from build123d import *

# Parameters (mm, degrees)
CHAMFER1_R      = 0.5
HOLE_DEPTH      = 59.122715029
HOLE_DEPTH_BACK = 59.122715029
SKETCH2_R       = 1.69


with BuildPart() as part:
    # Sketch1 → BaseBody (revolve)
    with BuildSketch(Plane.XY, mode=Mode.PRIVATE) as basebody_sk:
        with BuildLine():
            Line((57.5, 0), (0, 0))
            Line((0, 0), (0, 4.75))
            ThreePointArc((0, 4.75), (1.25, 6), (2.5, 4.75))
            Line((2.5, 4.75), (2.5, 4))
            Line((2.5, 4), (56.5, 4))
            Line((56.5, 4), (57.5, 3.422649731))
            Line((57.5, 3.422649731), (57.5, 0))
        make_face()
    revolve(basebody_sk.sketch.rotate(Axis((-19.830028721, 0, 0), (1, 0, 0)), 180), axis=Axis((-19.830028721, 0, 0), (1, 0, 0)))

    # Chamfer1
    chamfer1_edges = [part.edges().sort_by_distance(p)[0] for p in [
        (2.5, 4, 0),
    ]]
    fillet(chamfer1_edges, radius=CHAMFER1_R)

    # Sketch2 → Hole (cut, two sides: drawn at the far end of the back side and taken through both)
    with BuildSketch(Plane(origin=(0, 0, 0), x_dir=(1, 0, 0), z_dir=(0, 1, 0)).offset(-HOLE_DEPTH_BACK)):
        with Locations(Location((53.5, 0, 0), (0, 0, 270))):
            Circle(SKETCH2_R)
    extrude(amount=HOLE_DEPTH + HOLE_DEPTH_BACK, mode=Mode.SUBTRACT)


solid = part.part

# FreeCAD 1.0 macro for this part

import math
import FreeCAD as App
import Part
import Sketcher
from FreeCAD import Vector
Q = App.Units.Quantity


def edges_at(feature, points):
    """Names of the edges that pass closest to the given points."""
    edges = feature.Shape.Edges
    near = lambda p: min(range(len(edges)), key=lambda i: edges[i].distToShape(Part.Vertex(*p))[0])
    return sorted({f"Edge{near(p) + 1}" for p in points})

doc = App.newDocument("Part")
body = doc.addObject("PartDesign::Body", "Body")

# Sketch on XY plane
sketch1 = body.newObject("Sketcher::SketchObject", "Sketch")
sketch1.AttachmentSupport = (doc.getObject("XY_Plane"), [""])
sketch1.MapMode = "FlatFace"
sketch1.addGeometry([
    Part.LineSegment(Vector(0, 0, 0), Vector(57.5, 0, 0)),  # 0
    Part.LineSegment(Vector(57.5, 0, 0), Vector(57.5, 3.4, 0)),  # 1
    Part.LineSegment(Vector(57.5, 3.4, 0), Vector(56.5, 4, 0)),  # 2
    Part.LineSegment(Vector(56.5, 4, 0), Vector(2.5, 4, 0)),  # 3
    Part.LineSegment(Vector(2.5, 4, 0), Vector(2.5, 4.8, 0)),  # 4
    Part.ArcOfCircle(Part.Circle(Vector(1.2, 4.8, 0), Vector(0, 0, 1), 1.2), math.radians(0), math.radians(180)),  # 5
    Part.LineSegment(Vector(0, 4.8, 0), Vector(0, 0, 0)),  # 6
], False)
sketch1.addConstraint([
    Sketcher.Constraint("Coincident", 0, 2, 1, 1),
    Sketcher.Constraint("Coincident", 1, 2, 2, 1),
    Sketcher.Constraint("Coincident", 2, 2, 3, 1),
    Sketcher.Constraint("Coincident", 3, 2, 4, 1),
    Sketcher.Constraint("Tangent", 4, 2, 5, 1),
    Sketcher.Constraint("Tangent", 5, 2, 6, 1),
    Sketcher.Constraint("Coincident", 6, 2, 0, 1),
    Sketcher.Constraint("Horizontal", 0),
    Sketcher.Constraint("Vertical", 1),
    Sketcher.Constraint("Horizontal", 3),
    Sketcher.Constraint("Vertical", 4),
    Sketcher.Constraint("Vertical", 6),
    Sketcher.Constraint("Coincident", 6, 2, -1, 1),
    Sketcher.Constraint("DistanceX", 3, 2, 3, 1, 54.0),
    Sketcher.Constraint("Angle", 2, Q("150 deg")),
    Sketcher.Constraint("Radius", 5, 1.25),
    Sketcher.Constraint("DistanceX", 0, 1, 0, 2, 57.5),
    Sketcher.Constraint("DistanceY", -1, 1, 2, 2, 4.0),
    Sketcher.Constraint("DistanceY", 4, 1, 4, 2, 0.75),
])
revolution = body.newObject("PartDesign::Revolution", "Revolution")
revolution.Profile = sketch1
revolution.ReferenceAxis = (sketch1, ["H_Axis"])
revolution.Angle = 360
doc.recompute()

fillet = body.newObject("PartDesign::Fillet", "Fillet")
fillet.Base = (revolution, edges_at(revolution, [(2.5, 4, 0)]))
fillet.Radius = 0.5

# Sketch on XZ plane
sketch2 = body.newObject("Sketcher::SketchObject", "Sketch001")
sketch2.AttachmentSupport = (doc.getObject("XZ_Plane"), [""])
sketch2.MapMode = "FlatFace"
sketch2.addGeometry(Part.Circle(Vector(53.5, 0, 0), Vector(0, 0, 1), 1.7), False)
sketch2.addConstraint([
    Sketcher.Constraint("PointOnObject", 0, 3, -1),
    Sketcher.Constraint("Diameter", 0, 3.38),
    Sketcher.Constraint("DistanceX", -1, 1, 0, 3, 53.5),
])
pocket1 = body.newObject("PartDesign::Pocket", "Pocket")
pocket1.Profile = sketch2
pocket1.Type = "ThroughAll"
pocket1.Midplane = True

doc.recompute()
